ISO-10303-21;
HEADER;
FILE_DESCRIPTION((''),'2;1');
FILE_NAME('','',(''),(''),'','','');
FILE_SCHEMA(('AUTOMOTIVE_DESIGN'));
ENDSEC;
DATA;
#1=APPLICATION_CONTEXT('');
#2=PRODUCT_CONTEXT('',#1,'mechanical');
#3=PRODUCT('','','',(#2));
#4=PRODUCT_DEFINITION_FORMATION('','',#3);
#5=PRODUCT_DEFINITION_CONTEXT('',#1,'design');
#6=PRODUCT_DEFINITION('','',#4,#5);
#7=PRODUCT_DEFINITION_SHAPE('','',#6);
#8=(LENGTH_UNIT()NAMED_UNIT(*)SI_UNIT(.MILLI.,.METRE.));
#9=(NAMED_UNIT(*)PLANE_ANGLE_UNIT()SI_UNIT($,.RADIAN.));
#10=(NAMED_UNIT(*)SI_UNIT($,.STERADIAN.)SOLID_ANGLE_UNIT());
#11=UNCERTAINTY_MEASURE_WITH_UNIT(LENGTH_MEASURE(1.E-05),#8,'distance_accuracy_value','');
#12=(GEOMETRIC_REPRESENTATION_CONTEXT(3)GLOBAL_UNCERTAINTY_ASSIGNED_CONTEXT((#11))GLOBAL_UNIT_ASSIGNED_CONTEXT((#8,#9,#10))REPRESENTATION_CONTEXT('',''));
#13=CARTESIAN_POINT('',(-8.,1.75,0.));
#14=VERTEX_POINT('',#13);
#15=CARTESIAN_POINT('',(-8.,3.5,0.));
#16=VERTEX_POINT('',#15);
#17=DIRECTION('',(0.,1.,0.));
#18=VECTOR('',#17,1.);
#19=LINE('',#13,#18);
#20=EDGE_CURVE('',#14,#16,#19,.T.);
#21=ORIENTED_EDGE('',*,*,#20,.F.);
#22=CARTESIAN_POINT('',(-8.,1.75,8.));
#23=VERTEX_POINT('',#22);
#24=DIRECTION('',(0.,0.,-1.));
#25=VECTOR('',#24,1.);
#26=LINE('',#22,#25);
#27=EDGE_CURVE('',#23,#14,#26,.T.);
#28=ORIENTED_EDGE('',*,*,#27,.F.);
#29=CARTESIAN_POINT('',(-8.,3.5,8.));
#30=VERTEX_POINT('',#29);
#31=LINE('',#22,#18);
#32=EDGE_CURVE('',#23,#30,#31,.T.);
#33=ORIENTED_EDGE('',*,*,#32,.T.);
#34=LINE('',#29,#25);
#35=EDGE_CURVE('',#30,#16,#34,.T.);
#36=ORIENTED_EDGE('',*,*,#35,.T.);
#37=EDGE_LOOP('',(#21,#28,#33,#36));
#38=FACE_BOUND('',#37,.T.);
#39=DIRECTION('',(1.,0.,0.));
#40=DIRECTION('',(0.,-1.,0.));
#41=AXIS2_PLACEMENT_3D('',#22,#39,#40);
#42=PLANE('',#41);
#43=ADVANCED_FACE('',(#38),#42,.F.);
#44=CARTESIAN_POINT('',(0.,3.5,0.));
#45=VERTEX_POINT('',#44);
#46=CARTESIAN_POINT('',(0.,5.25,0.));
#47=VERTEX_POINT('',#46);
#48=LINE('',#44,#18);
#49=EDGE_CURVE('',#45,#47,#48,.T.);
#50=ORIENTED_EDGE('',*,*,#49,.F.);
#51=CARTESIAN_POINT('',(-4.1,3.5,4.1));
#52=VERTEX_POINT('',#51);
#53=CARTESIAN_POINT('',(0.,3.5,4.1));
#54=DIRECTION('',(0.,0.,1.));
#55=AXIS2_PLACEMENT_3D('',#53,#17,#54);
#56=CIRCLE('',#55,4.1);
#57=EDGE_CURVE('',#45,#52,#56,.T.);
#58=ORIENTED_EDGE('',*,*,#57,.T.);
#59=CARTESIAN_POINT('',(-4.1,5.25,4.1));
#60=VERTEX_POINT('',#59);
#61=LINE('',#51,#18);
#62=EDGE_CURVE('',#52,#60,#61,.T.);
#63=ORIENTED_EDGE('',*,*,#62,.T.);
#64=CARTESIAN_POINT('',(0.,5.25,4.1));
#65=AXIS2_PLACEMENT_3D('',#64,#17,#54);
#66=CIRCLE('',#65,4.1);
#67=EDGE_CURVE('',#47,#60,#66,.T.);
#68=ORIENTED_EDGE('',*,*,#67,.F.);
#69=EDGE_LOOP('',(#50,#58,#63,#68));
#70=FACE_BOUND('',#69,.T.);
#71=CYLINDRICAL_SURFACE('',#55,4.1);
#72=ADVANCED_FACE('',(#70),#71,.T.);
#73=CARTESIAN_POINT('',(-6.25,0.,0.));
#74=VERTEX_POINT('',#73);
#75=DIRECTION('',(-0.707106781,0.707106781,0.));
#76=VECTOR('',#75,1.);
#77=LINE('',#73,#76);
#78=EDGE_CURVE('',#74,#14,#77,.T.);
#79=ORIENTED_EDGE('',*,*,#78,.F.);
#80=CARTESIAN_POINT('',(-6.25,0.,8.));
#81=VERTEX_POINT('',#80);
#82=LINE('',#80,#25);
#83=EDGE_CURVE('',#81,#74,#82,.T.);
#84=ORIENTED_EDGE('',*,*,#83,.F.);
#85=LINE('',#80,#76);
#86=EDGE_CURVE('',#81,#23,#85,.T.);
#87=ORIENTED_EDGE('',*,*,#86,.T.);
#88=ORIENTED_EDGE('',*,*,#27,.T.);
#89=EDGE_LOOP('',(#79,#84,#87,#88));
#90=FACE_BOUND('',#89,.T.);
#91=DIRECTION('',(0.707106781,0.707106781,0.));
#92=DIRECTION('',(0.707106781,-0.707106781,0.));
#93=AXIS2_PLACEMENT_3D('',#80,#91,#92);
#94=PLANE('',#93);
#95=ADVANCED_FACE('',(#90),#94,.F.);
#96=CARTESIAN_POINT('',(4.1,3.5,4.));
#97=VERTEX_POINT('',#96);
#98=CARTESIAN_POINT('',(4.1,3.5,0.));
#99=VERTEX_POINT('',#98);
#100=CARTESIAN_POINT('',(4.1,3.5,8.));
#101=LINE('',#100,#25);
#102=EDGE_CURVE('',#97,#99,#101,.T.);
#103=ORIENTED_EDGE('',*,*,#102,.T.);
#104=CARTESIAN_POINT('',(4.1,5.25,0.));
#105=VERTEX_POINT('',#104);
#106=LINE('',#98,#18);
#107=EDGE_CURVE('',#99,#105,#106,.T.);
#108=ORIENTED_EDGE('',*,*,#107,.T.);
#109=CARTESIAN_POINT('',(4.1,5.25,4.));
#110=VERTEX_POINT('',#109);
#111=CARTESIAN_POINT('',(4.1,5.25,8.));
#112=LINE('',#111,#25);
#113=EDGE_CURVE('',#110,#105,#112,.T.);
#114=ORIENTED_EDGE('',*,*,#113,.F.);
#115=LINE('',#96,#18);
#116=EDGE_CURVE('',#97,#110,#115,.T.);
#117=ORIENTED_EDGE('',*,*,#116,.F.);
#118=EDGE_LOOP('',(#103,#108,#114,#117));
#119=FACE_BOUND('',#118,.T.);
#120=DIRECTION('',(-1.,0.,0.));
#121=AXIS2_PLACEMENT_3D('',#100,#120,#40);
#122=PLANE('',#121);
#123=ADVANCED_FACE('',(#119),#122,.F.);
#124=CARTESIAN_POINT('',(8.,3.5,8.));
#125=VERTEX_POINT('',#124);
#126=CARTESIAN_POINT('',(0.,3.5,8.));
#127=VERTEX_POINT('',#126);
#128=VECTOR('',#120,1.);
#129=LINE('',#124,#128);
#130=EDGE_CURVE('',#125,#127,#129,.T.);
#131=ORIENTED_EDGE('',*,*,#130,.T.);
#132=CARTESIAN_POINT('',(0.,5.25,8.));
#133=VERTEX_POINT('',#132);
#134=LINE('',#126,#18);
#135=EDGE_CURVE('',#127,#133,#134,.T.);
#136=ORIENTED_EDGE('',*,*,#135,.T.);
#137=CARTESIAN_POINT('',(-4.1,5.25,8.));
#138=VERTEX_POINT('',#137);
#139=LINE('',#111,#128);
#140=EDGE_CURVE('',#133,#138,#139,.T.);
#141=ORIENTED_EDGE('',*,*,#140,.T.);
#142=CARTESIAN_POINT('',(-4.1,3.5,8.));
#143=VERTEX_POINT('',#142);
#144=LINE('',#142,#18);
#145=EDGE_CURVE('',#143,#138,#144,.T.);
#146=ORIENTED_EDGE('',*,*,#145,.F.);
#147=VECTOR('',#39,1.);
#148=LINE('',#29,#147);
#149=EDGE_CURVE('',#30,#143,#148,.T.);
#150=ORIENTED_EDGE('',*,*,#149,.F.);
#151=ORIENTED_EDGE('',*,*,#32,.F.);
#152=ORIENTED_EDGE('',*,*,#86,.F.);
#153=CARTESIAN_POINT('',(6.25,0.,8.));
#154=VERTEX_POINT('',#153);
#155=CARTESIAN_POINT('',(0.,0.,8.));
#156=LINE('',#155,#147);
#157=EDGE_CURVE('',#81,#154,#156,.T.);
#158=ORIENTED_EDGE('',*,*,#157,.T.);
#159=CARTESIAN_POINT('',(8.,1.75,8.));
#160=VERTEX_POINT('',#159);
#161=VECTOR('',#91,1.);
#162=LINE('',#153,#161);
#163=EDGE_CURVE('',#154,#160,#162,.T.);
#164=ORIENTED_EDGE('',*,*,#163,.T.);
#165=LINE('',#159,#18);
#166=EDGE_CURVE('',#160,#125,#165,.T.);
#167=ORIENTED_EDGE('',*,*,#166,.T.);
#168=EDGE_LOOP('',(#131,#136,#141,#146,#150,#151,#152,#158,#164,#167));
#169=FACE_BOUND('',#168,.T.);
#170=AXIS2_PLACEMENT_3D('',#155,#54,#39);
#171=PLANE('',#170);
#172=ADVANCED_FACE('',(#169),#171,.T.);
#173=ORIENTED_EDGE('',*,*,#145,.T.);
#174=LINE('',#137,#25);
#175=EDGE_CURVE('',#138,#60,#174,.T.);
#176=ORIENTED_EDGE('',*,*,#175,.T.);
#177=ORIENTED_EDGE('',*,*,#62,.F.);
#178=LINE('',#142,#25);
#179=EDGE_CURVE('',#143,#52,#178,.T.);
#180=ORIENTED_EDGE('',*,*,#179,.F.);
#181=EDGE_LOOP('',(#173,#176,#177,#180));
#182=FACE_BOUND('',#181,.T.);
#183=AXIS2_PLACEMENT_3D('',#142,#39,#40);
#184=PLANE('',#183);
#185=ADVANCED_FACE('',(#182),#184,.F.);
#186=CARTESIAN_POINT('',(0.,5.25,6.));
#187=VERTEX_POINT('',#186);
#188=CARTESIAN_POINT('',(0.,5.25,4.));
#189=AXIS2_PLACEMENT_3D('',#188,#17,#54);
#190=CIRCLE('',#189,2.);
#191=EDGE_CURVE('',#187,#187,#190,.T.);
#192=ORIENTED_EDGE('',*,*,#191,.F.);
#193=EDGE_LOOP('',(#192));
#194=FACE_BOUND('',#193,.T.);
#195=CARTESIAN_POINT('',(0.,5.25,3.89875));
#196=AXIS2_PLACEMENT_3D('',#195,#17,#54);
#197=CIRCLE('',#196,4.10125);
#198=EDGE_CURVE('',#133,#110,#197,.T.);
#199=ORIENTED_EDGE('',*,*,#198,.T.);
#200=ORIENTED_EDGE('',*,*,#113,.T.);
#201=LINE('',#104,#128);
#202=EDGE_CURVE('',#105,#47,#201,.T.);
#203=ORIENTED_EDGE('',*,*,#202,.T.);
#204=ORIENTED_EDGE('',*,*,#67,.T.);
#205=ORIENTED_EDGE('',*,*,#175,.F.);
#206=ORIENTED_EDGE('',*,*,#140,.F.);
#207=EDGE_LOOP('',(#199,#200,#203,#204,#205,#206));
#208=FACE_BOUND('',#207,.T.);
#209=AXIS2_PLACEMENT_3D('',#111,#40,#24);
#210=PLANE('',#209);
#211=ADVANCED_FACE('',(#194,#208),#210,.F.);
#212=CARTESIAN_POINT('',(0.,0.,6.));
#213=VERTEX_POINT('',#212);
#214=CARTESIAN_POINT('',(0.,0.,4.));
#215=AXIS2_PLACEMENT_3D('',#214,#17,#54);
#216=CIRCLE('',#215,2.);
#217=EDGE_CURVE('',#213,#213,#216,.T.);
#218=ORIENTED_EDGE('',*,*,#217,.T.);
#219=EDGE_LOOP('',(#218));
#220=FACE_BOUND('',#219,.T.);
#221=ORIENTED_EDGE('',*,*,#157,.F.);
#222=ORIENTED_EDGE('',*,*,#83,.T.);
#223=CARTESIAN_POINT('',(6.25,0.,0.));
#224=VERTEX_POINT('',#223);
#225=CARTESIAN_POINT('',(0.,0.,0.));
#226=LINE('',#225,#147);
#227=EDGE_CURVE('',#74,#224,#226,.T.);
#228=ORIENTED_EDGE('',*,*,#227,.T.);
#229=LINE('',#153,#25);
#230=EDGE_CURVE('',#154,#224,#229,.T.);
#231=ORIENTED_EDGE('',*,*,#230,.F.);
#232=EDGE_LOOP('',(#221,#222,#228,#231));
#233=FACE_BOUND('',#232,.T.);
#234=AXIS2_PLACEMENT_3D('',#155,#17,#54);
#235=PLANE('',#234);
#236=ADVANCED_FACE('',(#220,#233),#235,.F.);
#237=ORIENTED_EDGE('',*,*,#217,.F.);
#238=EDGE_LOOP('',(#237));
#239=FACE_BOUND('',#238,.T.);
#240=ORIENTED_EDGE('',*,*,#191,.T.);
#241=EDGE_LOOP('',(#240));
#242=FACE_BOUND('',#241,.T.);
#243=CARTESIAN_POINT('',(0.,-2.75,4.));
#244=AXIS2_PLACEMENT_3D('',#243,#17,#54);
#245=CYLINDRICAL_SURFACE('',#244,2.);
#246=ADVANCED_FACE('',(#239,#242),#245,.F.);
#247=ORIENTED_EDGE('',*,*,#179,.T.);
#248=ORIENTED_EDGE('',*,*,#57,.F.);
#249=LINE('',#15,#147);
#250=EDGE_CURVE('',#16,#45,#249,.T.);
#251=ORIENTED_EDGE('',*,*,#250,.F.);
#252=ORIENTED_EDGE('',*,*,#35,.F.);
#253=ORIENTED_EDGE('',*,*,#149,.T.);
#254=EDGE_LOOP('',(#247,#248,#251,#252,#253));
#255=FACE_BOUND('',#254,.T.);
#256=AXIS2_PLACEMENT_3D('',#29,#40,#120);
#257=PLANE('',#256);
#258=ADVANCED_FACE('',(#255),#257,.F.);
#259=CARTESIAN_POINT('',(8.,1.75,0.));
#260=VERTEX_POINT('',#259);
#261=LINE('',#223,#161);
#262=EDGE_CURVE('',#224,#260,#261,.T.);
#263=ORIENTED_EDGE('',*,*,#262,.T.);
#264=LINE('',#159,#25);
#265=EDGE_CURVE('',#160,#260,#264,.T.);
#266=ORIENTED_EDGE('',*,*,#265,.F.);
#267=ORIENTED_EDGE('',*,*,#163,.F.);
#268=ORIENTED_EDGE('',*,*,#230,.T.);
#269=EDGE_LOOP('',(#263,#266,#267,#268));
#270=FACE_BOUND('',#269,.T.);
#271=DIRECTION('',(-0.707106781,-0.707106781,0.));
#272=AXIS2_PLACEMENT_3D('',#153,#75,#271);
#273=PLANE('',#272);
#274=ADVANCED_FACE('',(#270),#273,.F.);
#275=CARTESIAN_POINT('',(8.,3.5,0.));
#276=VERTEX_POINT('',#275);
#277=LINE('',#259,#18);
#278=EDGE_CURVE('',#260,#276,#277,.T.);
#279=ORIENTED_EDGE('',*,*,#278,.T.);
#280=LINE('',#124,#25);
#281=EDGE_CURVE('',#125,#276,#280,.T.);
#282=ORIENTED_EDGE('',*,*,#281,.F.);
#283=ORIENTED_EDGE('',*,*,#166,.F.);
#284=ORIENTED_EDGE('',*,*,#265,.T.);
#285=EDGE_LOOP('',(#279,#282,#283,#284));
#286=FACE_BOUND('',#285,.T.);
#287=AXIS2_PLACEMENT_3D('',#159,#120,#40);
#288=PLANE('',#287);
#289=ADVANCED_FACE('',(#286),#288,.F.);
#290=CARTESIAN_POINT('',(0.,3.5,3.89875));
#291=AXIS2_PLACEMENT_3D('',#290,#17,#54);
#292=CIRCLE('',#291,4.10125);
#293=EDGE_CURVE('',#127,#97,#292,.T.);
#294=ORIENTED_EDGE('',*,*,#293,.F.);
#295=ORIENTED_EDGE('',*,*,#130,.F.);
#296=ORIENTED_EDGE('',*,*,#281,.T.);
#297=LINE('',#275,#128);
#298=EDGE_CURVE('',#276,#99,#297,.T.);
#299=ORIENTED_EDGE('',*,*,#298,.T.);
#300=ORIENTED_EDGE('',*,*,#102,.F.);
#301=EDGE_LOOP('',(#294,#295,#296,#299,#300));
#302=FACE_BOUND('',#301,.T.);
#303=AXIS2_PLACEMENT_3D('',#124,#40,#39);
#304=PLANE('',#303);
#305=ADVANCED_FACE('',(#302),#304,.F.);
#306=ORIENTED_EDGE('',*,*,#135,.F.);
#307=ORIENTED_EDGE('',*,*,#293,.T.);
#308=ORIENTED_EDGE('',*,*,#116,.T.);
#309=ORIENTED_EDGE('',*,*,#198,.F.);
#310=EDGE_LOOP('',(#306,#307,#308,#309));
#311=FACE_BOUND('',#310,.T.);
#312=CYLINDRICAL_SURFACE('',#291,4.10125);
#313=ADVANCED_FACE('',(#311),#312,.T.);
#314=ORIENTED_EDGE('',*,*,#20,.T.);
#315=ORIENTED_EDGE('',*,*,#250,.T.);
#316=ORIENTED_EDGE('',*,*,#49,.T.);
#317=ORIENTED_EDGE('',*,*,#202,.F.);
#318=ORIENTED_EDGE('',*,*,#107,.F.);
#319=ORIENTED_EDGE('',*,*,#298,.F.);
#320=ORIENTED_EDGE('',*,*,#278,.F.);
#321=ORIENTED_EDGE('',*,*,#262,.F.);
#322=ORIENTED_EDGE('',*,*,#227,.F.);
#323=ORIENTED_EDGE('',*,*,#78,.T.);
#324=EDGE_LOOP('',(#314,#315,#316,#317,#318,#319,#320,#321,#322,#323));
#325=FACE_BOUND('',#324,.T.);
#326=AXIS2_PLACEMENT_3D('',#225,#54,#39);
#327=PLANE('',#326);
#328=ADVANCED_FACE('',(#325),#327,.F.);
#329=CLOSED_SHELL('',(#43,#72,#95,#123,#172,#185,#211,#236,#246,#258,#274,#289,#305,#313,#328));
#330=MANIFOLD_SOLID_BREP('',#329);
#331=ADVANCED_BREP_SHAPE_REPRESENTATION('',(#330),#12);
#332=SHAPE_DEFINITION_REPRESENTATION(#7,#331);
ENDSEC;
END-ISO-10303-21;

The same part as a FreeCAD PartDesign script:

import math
import FreeCAD as App
import Part
import Sketcher

V = App.Vector
Q = App.Units.Quantity

doc = App.newDocument("Part")
body = doc.addObject("PartDesign::Body", "Body")

sketch1 = body.newObject("Sketcher::SketchObject", "Sketch")
sketch1.AttachmentSupport = (doc.getObject("XY_Plane"), [""])
sketch1.MapMode = "FlatFace"
sketch1.addGeometry(Part.LineSegment(V(0, 5.25, 0), V(0, 0, 0)), False)
sketch1.addGeometry(Part.LineSegment(V(0, 0, 0), V(6.25, 0, 0)), False)
sketch1.addGeometry(Part.LineSegment(V(6.25, 0, 0), V(8, 1.75, 0)), False)
sketch1.addGeometry(Part.LineSegment(V(8, 1.75, 0), V(8, 3.5, 0)), False)
sketch1.addGeometry(Part.LineSegment(V(8, 3.5, 0), V(4.1, 3.5, 0)), False)
sketch1.addGeometry(Part.LineSegment(V(4.1, 3.5, 0), V(4.1, 5.25, 0)), False)
sketch1.addGeometry(Part.LineSegment(V(4.1, 5.25, 0), V(0, 5.25, 0)), False)
sketch1.addConstraint(Sketcher.Constraint("Coincident", 0, 2, 1, 1))
sketch1.addConstraint(Sketcher.Constraint("Coincident", 1, 2, 2, 1))
sketch1.addConstraint(Sketcher.Constraint("Coincident", 2, 2, 3, 1))
sketch1.addConstraint(Sketcher.Constraint("Coincident", 3, 2, 4, 1))
sketch1.addConstraint(Sketcher.Constraint("Coincident", 4, 2, 5, 1))
sketch1.addConstraint(Sketcher.Constraint("Coincident", 5, 2, 6, 1))
sketch1.addConstraint(Sketcher.Constraint("Coincident", 6, 2, 0, 1))
sketch1.addConstraint(Sketcher.Constraint("Vertical", 0))
sketch1.addConstraint(Sketcher.Constraint("Horizontal", 1))
sketch1.addConstraint(Sketcher.Constraint("Vertical", 3))
sketch1.addConstraint(Sketcher.Constraint("Horizontal", 4))
sketch1.addConstraint(Sketcher.Constraint("Vertical", 5))
sketch1.addConstraint(Sketcher.Constraint("Horizontal", 6))
sketch1.addConstraint(Sketcher.Constraint("Coincident", 0, 2, -1, 1))
sketch1.addConstraint(Sketcher.Constraint("Equal", 3, 5))
sketch1.addConstraint(Sketcher.Constraint("Angle", 2, Q("45 deg")))
sketch1.addConstraint(Sketcher.Constraint("DistanceX", 4, 2, 4, 1, Q("3.9 mm")))
sketch1.addConstraint(Sketcher.Constraint("DistanceX", 6, 2, 6, 1, Q("4.1 mm")))
sketch1.addConstraint(Sketcher.Constraint("DistanceX", 1, 1, 1, 2, Q("6.25 mm")))
sketch1.addConstraint(Sketcher.Constraint("DistanceY", 0, 2, 0, 1, Q("5.25 mm")))
pad1 = body.newObject("PartDesign::Pad", "Pad")
pad1.Profile = sketch1
pad1.Length = 8
body2 = doc.addObject("PartDesign::Body", "Body001")
doc.recompute()

body2.BaseFeature = body
doc.recompute()

mirroring = doc.addObject("Part::Mirroring", "Mirroring")
mirroring.Source = body
mirroring.Base = V(0, 0, 0)
mirroring.Normal = V(1, 0, 0)
body3 = doc.addObject("PartDesign::Body", "Body002")
body3.BaseFeature = mirroring
boolean = body2.newObject("PartDesign::Boolean", "Boolean")
boolean.Type = "Fuse"
boolean.addObjects([body3])
doc.recompute()

sketch2 = body2.newObject("Sketcher::SketchObject", "Sketch001")
sketch2.AttachmentSupport = (doc.getObject("XZ_Plane001"), [""])
sketch2.MapMode = "FlatFace"
sketch2.AttachmentOffset = App.Placement(V(0, 0, -5.25), App.Rotation())
sketch2.addGeometry(Part.Circle(V(0, 4, 0), V(0, 0, 1), 2), False)
sketch2.addConstraint(Sketcher.Constraint("PointOnObject", 0, 3, -2))
sketch2.addConstraint(Sketcher.Constraint("Diameter", 0, Q("4 mm")))
sketch2.addConstraint(Sketcher.Constraint("DistanceY", -1, 1, 0, 3, Q("4 mm")))
pocket1 = body2.newObject("PartDesign::Pocket", "Pocket")
pocket1.Profile = sketch2
pocket1.Length = 8
pocket1.Reversed = True

sketch3 = body2.newObject("Sketcher::SketchObject", "Sketch002")
sketch3.AttachmentSupport = (doc.getObject("XZ_Plane001"), [""])
sketch3.MapMode = "FlatFace"
sketch3.AttachmentOffset = App.Placement(V(0, 0, -5.25), App.Rotation())
sketch3.addGeometry(Part.ArcOfCircle(Part.Circle(V(0, 3.89875, 0), V(0, 0, 1), 4.10125), math.radians(1.414639), math.radians(90)), False)
sketch3.addGeometry(Part.LineSegment(V(0, 8, 0), V(4.1, 8, 0)), False)
sketch3.addGeometry(Part.LineSegment(V(4.1, 8, 0), V(4.1, 4, 0)), False)
sketch3.addGeometry(Part.LineSegment(V(-4.1, 0, 0), V(-4.1, 4.1, 0)), False)
sketch3.addGeometry(Part.ArcOfCircle(Part.Circle(V(0, 4.1, 0), V(0, 0, 1), 4.1), math.radians(180), math.radians(270)), False)
sketch3.addGeometry(Part.LineSegment(V(0, 0, 0), V(-4.1, 0, 0)), False)
sketch3.addConstraint(Sketcher.Constraint("Tangent", 0, 2, 1, 1))
sketch3.addConstraint(Sketcher.Constraint("Coincident", 1, 2, 2, 1))
sketch3.addConstraint(Sketcher.Constraint("Coincident", 2, 2, 0, 1))
sketch3.addConstraint(Sketcher.Constraint("Tangent", 3, 2, 4, 1))
sketch3.addConstraint(Sketcher.Constraint("Tangent", 4, 2, 5, 1))
sketch3.addConstraint(Sketcher.Constraint("Coincident", 5, 2, 3, 1))
sketch3.addConstraint(Sketcher.Constraint("Horizontal", 1))
sketch3.addConstraint(Sketcher.Constraint("Vertical", 2))
sketch3.addConstraint(Sketcher.Constraint("Vertical", 3))
sketch3.addConstraint(Sketcher.Constraint("Horizontal", 5))
sketch3.addConstraint(Sketcher.Constraint("Coincident", 4, 2, -1, 1))
sketch3.addConstraint(Sketcher.Constraint("PointOnObject", 0, 3, -2))
sketch3.addConstraint(Sketcher.Constraint("Equal", 1, 5))
sketch3.addConstraint(Sketcher.Constraint("Radius", 4, Q("4.1 mm")))
sketch3.addConstraint(Sketcher.Constraint("DistanceY", 2, 2, 2, 1, Q("4 mm")))
sketch3.addConstraint(Sketcher.Constraint("DistanceY", -1, 1, 0, 2, Q("8 mm")))
pocket2 = body2.newObject("PartDesign::Pocket", "Pocket001")
pocket2.Profile = sketch3
pocket2.Length = 1.75
pocket2.Reversed = True
mirroring.Visibility = False

doc.recompute()
